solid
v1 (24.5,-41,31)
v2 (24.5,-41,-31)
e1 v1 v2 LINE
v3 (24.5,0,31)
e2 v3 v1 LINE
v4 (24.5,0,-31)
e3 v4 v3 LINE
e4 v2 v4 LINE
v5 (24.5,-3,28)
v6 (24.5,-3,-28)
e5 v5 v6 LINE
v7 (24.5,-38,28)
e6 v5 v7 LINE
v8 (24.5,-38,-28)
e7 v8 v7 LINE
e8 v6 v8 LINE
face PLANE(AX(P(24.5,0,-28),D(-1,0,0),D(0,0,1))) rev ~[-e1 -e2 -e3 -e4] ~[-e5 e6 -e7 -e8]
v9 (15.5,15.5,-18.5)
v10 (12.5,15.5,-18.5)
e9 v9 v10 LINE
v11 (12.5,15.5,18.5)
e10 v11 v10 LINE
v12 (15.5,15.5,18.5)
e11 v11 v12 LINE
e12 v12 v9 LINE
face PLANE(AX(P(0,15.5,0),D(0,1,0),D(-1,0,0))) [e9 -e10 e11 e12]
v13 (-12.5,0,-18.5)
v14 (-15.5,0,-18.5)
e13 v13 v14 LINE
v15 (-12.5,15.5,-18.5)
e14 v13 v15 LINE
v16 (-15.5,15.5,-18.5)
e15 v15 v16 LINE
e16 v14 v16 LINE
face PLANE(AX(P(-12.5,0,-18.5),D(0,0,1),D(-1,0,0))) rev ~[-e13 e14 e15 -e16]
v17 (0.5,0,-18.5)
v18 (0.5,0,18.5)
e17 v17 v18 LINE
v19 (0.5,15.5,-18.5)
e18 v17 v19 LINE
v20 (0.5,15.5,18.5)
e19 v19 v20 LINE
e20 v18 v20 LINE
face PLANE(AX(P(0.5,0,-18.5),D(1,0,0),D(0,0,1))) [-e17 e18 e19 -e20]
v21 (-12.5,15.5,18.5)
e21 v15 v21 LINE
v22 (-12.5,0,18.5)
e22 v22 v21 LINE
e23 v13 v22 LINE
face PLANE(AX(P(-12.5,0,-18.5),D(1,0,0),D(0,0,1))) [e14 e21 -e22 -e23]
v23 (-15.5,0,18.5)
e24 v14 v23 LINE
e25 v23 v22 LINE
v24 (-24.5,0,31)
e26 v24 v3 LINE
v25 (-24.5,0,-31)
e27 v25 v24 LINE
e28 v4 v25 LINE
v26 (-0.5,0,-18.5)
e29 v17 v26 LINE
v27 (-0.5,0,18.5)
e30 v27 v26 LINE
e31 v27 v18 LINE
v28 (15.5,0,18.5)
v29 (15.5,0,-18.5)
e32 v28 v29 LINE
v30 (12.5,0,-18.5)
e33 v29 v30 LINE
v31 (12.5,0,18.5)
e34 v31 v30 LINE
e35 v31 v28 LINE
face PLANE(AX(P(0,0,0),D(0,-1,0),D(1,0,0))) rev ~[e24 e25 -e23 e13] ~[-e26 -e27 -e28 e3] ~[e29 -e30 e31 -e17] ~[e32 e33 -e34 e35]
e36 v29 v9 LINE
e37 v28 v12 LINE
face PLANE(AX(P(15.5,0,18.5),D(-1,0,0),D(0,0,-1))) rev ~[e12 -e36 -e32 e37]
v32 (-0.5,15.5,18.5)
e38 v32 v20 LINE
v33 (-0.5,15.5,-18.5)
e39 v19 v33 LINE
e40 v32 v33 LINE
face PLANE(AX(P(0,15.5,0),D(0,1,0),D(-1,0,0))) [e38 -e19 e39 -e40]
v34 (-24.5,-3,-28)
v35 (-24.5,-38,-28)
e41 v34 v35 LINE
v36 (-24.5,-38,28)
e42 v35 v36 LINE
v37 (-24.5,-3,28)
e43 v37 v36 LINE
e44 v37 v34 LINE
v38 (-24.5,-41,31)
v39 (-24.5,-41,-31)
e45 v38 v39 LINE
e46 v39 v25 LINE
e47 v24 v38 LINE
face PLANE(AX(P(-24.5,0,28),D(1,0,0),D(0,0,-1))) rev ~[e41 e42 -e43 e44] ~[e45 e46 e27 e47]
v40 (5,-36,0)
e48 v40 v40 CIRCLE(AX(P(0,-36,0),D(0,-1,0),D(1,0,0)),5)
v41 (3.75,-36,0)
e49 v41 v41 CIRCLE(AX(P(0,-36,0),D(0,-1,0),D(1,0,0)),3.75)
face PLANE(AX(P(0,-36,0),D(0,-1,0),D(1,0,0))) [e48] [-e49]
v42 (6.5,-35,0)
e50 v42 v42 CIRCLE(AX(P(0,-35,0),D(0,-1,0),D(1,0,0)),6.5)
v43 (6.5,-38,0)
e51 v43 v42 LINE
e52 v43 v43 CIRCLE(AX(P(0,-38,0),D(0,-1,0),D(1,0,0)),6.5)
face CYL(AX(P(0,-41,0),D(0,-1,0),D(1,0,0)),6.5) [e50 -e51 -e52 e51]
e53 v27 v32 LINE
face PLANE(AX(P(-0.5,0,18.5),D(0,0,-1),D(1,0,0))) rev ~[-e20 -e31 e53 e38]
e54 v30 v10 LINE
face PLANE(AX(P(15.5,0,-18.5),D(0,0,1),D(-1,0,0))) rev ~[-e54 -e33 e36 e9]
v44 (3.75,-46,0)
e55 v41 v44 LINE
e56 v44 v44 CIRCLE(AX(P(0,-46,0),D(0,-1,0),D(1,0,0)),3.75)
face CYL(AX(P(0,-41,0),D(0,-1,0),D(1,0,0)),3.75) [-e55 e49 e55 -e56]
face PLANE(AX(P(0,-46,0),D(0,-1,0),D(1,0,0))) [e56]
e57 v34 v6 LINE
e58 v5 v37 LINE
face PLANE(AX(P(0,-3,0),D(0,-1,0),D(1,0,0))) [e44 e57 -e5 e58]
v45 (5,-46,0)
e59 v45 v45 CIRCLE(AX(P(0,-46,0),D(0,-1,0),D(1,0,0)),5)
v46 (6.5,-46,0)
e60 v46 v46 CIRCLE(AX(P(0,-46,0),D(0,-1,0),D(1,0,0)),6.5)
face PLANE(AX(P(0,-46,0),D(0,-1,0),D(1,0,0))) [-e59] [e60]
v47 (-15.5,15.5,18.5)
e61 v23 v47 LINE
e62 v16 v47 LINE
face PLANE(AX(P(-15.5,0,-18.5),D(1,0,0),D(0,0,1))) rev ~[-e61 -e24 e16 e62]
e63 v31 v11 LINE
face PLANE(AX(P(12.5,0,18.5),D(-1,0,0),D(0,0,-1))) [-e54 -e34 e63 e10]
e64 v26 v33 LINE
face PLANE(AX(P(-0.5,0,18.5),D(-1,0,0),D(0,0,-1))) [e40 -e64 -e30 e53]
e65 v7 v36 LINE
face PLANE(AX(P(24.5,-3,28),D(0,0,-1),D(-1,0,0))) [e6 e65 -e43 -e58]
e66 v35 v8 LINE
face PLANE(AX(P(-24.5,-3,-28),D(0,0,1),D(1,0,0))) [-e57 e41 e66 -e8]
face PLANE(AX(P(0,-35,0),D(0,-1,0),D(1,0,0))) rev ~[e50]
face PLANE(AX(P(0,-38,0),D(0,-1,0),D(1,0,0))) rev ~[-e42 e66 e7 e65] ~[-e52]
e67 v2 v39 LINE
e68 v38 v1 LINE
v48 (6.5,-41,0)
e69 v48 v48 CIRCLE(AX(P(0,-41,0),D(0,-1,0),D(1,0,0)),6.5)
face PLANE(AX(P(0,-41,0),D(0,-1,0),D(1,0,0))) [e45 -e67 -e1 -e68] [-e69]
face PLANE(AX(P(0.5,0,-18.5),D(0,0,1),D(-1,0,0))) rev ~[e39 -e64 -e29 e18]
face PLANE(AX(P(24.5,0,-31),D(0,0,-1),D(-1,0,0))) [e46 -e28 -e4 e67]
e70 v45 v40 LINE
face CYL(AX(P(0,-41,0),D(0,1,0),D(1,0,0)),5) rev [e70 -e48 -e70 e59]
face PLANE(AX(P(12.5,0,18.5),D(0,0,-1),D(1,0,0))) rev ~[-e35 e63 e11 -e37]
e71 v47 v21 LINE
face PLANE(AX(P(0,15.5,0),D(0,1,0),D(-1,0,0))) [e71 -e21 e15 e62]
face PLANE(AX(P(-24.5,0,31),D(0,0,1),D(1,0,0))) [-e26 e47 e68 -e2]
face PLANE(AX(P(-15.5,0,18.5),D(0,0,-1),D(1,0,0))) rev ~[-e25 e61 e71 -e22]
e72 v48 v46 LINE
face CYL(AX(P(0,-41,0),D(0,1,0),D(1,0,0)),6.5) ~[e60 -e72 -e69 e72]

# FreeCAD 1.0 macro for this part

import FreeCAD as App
import Part
import Sketcher
from FreeCAD import Vector


def add_polygon(sketch, points):
    """Adds a closed chain of lines whose ends are joined by coincident constraints."""
    first, n = sketch.GeometryCount, len(points)
    for a, b in zip(points, points[1:] + points[:1]):
        sketch.addGeometry(Part.LineSegment(App.Vector(*a, 0), App.Vector(*b, 0)), False)
    for i in range(n):
        sketch.addConstraint(Sketcher.Constraint("Coincident", first + i, 2, first + (i + 1) % n, 1))

doc = App.newDocument("Part")
body = doc.addObject("PartDesign::Body", "Body")
body.AllowCompound = True

sketch1 = body.newObject("Sketcher::SketchObject", "Sketch")
sketch1.AttachmentSupport = (doc.getObject("XZ_Plane"), [""])
sketch1.MapMode = "FlatFace"
add_polygon(sketch1, [(-0.5, 18.5), (0.5, 18.5), (0.5, -18.5), (-0.5, -18.5)])
add_polygon(sketch1, [(12.5, -18.5), (12.5, 18.5), (15.5, 18.5), (15.5, -18.5)])
add_polygon(sketch1, [(-15.5, 18.5), (-12.5, 18.5), (-12.5, -18.5), (-15.5, -18.5)])
sketch1.addConstraint(Sketcher.Constraint("Horizontal", 0))
sketch1.addConstraint(Sketcher.Constraint("Vertical", 1))
sketch1.addConstraint(Sketcher.Constraint("Horizontal", 2))
sketch1.addConstraint(Sketcher.Constraint("Vertical", 3))
sketch1.addConstraint(Sketcher.Constraint("Vertical", 4))
sketch1.addConstraint(Sketcher.Constraint("Horizontal", 5))
sketch1.addConstraint(Sketcher.Constraint("Vertical", 6))
sketch1.addConstraint(Sketcher.Constraint("Horizontal", 7))
sketch1.addConstraint(Sketcher.Constraint("Horizontal", 8))
sketch1.addConstraint(Sketcher.Constraint("Vertical", 9))
sketch1.addConstraint(Sketcher.Constraint("Horizontal", 10))
sketch1.addConstraint(Sketcher.Constraint("Vertical", 11))
sketch1.addConstraint(Sketcher.Constraint("Symmetric", 0, 2, 2, 2, -1, 1))
sketch1.addConstraint(Sketcher.Constraint("Symmetric", 7, 2, 8, 2, -1, 1))
sketch1.addConstraint(Sketcher.Constraint("Symmetric", 5, 2, 10, 2, -1, 1))
sketch1.addConstraint(Sketcher.Constraint("Horizontal", 3, 2, 4, 2))
sketch1.addConstraint(Sketcher.Constraint("Horizontal", 2, 2, 6, 2))
sketch1.addConstraint(Sketcher.Constraint("DistanceX", 0, 1, 0, 2, 1.0))
sketch1.addConstraint(Sketcher.Constraint("DistanceX", 5, 1, 5, 2, 3.0))
sketch1.addConstraint(Sketcher.Constraint("DistanceY", 1, 2, 1, 1, 37.0))
sketch1.addConstraint(Sketcher.Constraint("DistanceX", 0, 2, 4, 2, 12.0))
pad1 = body.newObject("PartDesign::Pad", "Pad")
pad1.Profile = sketch1
pad1.Length = 15.5
pad1.Reversed = True

sketch2 = body.newObject("Sketcher::SketchObject", "Sketch001")
sketch2.AttachmentSupport = (doc.getObject("XZ_Plane"), [""])
sketch2.MapMode = "FlatFace"
add_polygon(sketch2, [(24, 31), (-24, 31), (-24, -31), (24, -31)])
sketch2.addConstraint(Sketcher.Constraint("Horizontal", 0))
sketch2.addConstraint(Sketcher.Constraint("Vertical", 1))
sketch2.addConstraint(Sketcher.Constraint("Horizontal", 2))
sketch2.addConstraint(Sketcher.Constraint("Vertical", 3))
sketch2.addConstraint(Sketcher.Constraint("Symmetric", 0, 2, 2, 2, -1, 1))
sketch2.addConstraint(Sketcher.Constraint("DistanceX", 0, 2, 0, 1, 49.0))
sketch2.addConstraint(Sketcher.Constraint("DistanceY", 1, 2, 1, 1, 62.0))
pad2 = body.newObject("PartDesign::Pad", "Pad001")
pad2.Profile = sketch2
pad2.Length = 3

sketch3 = body.newObject("Sketcher::SketchObject", "Sketch002")
sketch3.AttachmentSupport = (doc.getObject("XZ_Plane"), [""])
sketch3.MapMode = "FlatFace"
sketch3.AttachmentOffset = App.Placement(Vector(0, 0, 3), App.Rotation())
add_polygon(sketch3, [(-24.5, 28), (24.5, 28), (24.5, 31), (-24.5, 31)])
add_polygon(sketch3, [(24.5, -31), (24.5, -28), (-24.5, -28), (-24.5, -31)])
sketch3.addConstraint(Sketcher.Constraint("Horizontal", 0))
sketch3.addConstraint(Sketcher.Constraint("Vertical", 1))
sketch3.addConstraint(Sketcher.Constraint("Horizontal", 2))
sketch3.addConstraint(Sketcher.Constraint("Vertical", 3))
sketch3.addConstraint(Sketcher.Constraint("Vertical", 4))
sketch3.addConstraint(Sketcher.Constraint("Horizontal", 5))
sketch3.addConstraint(Sketcher.Constraint("Vertical", 6))
sketch3.addConstraint(Sketcher.Constraint("Horizontal", 7))
sketch3.addConstraint(Sketcher.Constraint("Symmetric", 3, 2, 4, 2, -1, 1))
sketch3.addConstraint(Sketcher.Constraint("Symmetric", 1, 2, 6, 2, -1, 1))
sketch3.addConstraint(Sketcher.Constraint("Vertical", 1, 2, 4, 2))
sketch3.addConstraint(Sketcher.Constraint("DistanceY", 1, 1, 1, 2, 3.0))
sketch3.addConstraint(Sketcher.Constraint("DistanceY", -1, 1, 0, 2, 28.0))
sketch3.addConstraint(Sketcher.Constraint("DistanceX", 0, 1, 0, 2, 49.0))
pad3 = body.newObject("PartDesign::Pad", "Pad002")
pad3.Profile = sketch3
pad3.Length = 35

sketch4 = body.newObject("Sketcher::SketchObject", "Sketch003")
sketch4.AttachmentSupport = (doc.getObject("XZ_Plane"), [""])
sketch4.MapMode = "FlatFace"
sketch4.AttachmentOffset = App.Placement(Vector(0, 0, 38), App.Rotation())
add_polygon(sketch4, [(24, 31), (-24, 31), (-24, -31), (24, -31)])
sketch4.addConstraint(Sketcher.Constraint("Horizontal", 0))
sketch4.addConstraint(Sketcher.Constraint("Vertical", 1))
sketch4.addConstraint(Sketcher.Constraint("Horizontal", 2))
sketch4.addConstraint(Sketcher.Constraint("Vertical", 3))
sketch4.addConstraint(Sketcher.Constraint("Symmetric", 0, 2, 2, 2, -1, 1))
sketch4.addConstraint(Sketcher.Constraint("DistanceX", 0, 2, 0, 1, 49.0))
sketch4.addConstraint(Sketcher.Constraint("DistanceY", 1, 2, 1, 1, 62.0))
pad4 = body.newObject("PartDesign::Pad", "Pad003")
pad4.Profile = sketch4
pad4.Length = 3

sketch5 = body.newObject("Sketcher::SketchObject", "Sketch004")
sketch5.AttachmentSupport = (doc.getObject("XZ_Plane"), [""])
sketch5.MapMode = "FlatFace"
sketch5.AttachmentOffset = App.Placement(Vector(0, 0, 41), App.Rotation())
sketch5.addGeometry(Part.Circle(Vector(0, 0, 0), Vector(0, 0, 1), 6), False)
sketch5.addConstraint(Sketcher.Constraint("Coincident", 0, 3, -1, 1))
sketch5.addConstraint(Sketcher.Constraint("Diameter", 0, 13.0))
pad5 = body.newObject("PartDesign::Pad", "Pad004")
pad5.Profile = sketch5
pad5.Length = 6
pad5.Reversed = True

sketch6 = body.newObject("Sketcher::SketchObject", "Sketch005")
sketch6.AttachmentSupport = (doc.getObject("XZ_Plane"), [""])
sketch6.MapMode = "FlatFace"
sketch6.AttachmentOffset = App.Placement(Vector(0, 0, 41), App.Rotation())
sketch6.addGeometry(Part.Circle(Vector(0, 0, 0), Vector(0, 0, 1), 5), False)
sketch6.addGeometry(Part.Circle(Vector(0, 0, 0), Vector(0, 0, 1), 3.8), False)
sketch6.addConstraint(Sketcher.Constraint("Coincident", 0, 3, -1, 1))
sketch6.addConstraint(Sketcher.Constraint("Coincident", 1, 3, -1, 1))
sketch6.addConstraint(Sketcher.Constraint("Diameter", 0, 10.0))
sketch6.addConstraint(Sketcher.Constraint("Diameter", 1, 7.5))
pocket1 = body.newObject("PartDesign::Pocket", "Pocket")
pocket1.Profile = sketch6
pocket1.Length = 5

sketch7 = body.newObject("Sketcher::SketchObject", "Sketch006")
sketch7.AttachmentSupport = (doc.getObject("XZ_Plane"), [""])
sketch7.MapMode = "FlatFace"
sketch7.AttachmentOffset = App.Placement(Vector(0, 0, 41), App.Rotation())
sketch7.addGeometry(Part.Circle(Vector(0, 0, 0), Vector(0, 0, 1), 3.8), False)
sketch7.addGeometry(Part.Circle(Vector(0, 0, 0), Vector(0, 0, 1), 6.5), False)
sketch7.addGeometry(Part.Circle(Vector(0, 0, 0), Vector(0, 0, 1), 5), False)
sketch7.addConstraint(Sketcher.Constraint("Coincident", 0, 3, -1, 1))
sketch7.addConstraint(Sketcher.Constraint("Coincident", 1, 3, -1, 1))
sketch7.addConstraint(Sketcher.Constraint("Coincident", 2, 3, -1, 1))
sketch7.addConstraint(Sketcher.Constraint("Diameter", 1, 13.0))
sketch7.addConstraint(Sketcher.Constraint("Diameter", 2, 10.0))
sketch7.addConstraint(Sketcher.Constraint("Diameter", 0, 7.5))
pad6 = body.newObject("PartDesign::Pad", "Pad005")
pad6.Profile = sketch7
pad6.Length = 5

doc.recompute()
